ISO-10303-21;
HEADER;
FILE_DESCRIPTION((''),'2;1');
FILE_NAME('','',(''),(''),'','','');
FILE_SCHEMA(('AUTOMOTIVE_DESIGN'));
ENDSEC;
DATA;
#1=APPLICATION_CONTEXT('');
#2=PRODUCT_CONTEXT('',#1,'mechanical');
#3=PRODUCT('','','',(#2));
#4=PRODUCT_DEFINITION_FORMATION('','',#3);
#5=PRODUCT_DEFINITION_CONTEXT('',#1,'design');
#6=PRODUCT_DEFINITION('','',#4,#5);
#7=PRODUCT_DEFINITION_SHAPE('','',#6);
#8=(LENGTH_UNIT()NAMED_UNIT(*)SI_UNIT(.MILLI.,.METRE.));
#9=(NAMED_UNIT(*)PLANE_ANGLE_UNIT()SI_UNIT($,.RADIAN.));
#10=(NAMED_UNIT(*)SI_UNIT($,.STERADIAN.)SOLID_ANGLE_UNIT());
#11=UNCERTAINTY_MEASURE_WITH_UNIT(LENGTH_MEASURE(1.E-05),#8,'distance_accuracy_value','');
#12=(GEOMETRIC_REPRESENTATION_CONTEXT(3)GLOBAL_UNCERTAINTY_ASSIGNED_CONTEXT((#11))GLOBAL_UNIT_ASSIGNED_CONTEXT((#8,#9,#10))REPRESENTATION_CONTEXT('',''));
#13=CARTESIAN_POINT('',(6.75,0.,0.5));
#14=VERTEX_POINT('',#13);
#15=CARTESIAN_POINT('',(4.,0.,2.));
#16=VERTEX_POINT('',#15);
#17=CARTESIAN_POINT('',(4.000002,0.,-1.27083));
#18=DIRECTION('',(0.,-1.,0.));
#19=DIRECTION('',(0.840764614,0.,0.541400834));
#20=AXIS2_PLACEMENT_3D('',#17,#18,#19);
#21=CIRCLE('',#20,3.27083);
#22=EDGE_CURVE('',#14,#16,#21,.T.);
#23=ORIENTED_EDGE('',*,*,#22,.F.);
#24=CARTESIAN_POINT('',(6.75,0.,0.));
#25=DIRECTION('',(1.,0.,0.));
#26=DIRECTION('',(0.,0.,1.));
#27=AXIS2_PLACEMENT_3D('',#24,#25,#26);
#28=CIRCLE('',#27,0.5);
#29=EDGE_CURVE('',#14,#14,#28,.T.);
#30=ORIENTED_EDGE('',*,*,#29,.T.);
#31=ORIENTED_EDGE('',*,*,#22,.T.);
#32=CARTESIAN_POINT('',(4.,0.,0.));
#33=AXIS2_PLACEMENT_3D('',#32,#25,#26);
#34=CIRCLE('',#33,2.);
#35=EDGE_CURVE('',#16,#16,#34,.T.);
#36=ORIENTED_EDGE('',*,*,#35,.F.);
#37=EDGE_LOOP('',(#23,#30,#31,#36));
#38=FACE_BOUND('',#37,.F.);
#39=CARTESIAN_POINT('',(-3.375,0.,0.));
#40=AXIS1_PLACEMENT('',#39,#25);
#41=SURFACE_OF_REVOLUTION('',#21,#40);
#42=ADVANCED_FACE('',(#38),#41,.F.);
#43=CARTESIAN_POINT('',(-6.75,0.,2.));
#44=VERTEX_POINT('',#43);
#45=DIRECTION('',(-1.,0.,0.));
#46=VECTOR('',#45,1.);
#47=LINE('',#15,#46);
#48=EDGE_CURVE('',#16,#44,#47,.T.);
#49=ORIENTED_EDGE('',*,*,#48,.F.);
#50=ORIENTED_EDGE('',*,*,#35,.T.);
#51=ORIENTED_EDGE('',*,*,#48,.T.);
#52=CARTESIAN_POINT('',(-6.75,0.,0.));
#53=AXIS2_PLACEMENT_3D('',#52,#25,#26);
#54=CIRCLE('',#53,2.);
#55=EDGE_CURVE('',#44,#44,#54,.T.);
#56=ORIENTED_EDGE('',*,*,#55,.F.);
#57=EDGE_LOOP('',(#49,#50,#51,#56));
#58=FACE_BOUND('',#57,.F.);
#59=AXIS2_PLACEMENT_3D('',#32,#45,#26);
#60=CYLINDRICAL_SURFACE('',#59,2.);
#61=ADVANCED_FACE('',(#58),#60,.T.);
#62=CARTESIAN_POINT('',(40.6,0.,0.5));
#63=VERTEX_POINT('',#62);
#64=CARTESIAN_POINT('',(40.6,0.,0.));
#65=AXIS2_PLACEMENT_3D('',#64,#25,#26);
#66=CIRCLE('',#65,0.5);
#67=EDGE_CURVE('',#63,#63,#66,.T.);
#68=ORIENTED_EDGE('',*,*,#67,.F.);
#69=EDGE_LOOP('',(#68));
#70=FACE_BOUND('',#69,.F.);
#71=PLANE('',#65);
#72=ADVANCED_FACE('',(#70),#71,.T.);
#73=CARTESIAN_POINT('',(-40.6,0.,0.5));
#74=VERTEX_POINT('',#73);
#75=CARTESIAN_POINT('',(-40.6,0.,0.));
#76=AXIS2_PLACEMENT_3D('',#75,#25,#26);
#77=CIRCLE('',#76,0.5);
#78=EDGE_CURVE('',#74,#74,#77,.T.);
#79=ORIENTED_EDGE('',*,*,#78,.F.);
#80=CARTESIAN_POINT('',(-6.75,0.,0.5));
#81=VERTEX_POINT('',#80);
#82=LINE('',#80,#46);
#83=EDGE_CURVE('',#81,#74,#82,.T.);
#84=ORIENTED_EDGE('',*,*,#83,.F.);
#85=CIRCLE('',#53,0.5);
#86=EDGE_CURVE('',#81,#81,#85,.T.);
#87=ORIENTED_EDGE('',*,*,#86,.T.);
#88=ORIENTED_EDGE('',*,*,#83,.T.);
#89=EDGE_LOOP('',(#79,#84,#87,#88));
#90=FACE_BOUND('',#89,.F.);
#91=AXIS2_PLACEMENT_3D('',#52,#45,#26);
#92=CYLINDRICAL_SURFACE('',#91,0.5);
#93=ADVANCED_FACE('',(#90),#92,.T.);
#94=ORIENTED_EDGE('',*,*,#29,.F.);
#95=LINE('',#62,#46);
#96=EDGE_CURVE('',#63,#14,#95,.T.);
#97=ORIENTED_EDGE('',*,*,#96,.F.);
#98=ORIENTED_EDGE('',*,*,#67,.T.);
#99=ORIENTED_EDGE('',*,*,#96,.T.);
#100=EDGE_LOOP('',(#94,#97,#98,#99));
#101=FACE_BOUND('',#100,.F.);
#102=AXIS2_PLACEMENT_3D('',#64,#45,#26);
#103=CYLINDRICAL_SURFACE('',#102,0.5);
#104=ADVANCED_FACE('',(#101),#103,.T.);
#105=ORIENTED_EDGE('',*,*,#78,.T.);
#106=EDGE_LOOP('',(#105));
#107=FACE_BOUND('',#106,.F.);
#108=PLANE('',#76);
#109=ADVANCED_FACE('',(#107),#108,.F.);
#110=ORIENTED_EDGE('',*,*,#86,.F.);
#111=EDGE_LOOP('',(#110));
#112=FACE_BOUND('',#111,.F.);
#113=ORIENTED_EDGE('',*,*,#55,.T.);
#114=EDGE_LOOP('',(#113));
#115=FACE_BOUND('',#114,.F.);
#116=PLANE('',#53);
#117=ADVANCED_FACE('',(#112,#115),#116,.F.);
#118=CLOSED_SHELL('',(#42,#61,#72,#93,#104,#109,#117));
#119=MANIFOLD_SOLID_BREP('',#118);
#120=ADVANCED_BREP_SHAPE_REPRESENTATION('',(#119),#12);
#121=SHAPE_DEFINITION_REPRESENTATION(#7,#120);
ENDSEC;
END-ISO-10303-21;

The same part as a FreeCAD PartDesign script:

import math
import FreeCAD as App
import Part
import Sketcher
from FreeCAD import Vector
Q = App.Units.Quantity

doc = App.newDocument("Part")
body = doc.addObject("PartDesign::Body", "Body")

sketch1 = body.newObject("Sketcher::SketchObject", "Sketch")
sketch1.AttachmentSupport = (doc.getObject("XZ_Plane"), [""])
sketch1.MapMode = "FlatFace"
sketch1.addGeometry(Part.LineSegment(Vector(-40.6, 0.5, 0), Vector(-40.6, 0, 0)), False)
sketch1.addGeometry(Part.LineSegment(Vector(-40.6, 0, 0), Vector(40.6, 0, 0)), False)
sketch1.addGeometry(Part.LineSegment(Vector(40.6, 0, 0), Vector(40.6, 0.5, 0)), False)
sketch1.addGeometry(Part.LineSegment(Vector(40.6, 0.5, 0), Vector(6.8, 0.5, 0)), False)
sketch1.addGeometry(Part.ArcOfCircle(Part.Circle(Vector(4, -1.3, 0), Vector(0, 0, 1), 3.3), math.radians(33), math.radians(90)), False)
sketch1.addGeometry(Part.LineSegment(Vector(4, 2, 0), Vector(-6.8, 2, 0)), False)
sketch1.addGeometry(Part.LineSegment(Vector(-6.8, 2, 0), Vector(-6.8, 0.5, 0)), False)
sketch1.addGeometry(Part.LineSegment(Vector(-6.8, 0.5, 0), Vector(-40.6, 0.5, 0)), False)
sketch1.addConstraint(Sketcher.Constraint("Coincident", 0, 2, 1, 1))
sketch1.addConstraint(Sketcher.Constraint("Coincident", 1, 2, 2, 1))
sketch1.addConstraint(Sketcher.Constraint("Coincident", 2, 2, 3, 1))
sketch1.addConstraint(Sketcher.Constraint("Coincident", 3, 2, 4, 1))
sketch1.addConstraint(Sketcher.Constraint("Tangent", 4, 2, 5, 1))
sketch1.addConstraint(Sketcher.Constraint("Coincident", 5, 2, 6, 1))
sketch1.addConstraint(Sketcher.Constraint("Coincident", 6, 2, 7, 1))
sketch1.addConstraint(Sketcher.Constraint("Coincident", 7, 2, 0, 1))
sketch1.addConstraint(Sketcher.Constraint("Vertical", 0))
sketch1.addConstraint(Sketcher.Constraint("Horizontal", 1))
sketch1.addConstraint(Sketcher.Constraint("Vertical", 2))
sketch1.addConstraint(Sketcher.Constraint("Horizontal", 3))
sketch1.addConstraint(Sketcher.Constraint("Horizontal", 5))
sketch1.addConstraint(Sketcher.Constraint("Vertical", 6))
sketch1.addConstraint(Sketcher.Constraint("Horizontal", 7))
sketch1.addConstraint(Sketcher.Constraint("Symmetric", 0, 2, 1, 2, -1, 1))
sketch1.addConstraint(Sketcher.Constraint("Symmetric", 3, 2, 6, 2, -2))
sketch1.addConstraint(Sketcher.Constraint("DistanceX", 1, 1, 1, 2, Q("81.2 mm")))
sketch1.addConstraint(Sketcher.Constraint("DistanceY", 0, 2, 0, 1, Q("0.5 mm")))
sketch1.addConstraint(Sketcher.Constraint("DistanceY", 6, 2, 6, 1, Q("1.5 mm")))
sketch1.addConstraint(Sketcher.Constraint("DistanceX", -1, 1, 4, 3, Q("4.000002 mm")))
sketch1.addConstraint(Sketcher.Constraint("DistanceX", 3, 2, 3, 1, Q("33.85 mm")))
revolution = body.newObject("PartDesign::Revolution", "Revolution")
revolution.Profile = sketch1
revolution.ReferenceAxis = (sketch1, ["H_Axis"])
revolution.Angle = 360

doc.recompute()
